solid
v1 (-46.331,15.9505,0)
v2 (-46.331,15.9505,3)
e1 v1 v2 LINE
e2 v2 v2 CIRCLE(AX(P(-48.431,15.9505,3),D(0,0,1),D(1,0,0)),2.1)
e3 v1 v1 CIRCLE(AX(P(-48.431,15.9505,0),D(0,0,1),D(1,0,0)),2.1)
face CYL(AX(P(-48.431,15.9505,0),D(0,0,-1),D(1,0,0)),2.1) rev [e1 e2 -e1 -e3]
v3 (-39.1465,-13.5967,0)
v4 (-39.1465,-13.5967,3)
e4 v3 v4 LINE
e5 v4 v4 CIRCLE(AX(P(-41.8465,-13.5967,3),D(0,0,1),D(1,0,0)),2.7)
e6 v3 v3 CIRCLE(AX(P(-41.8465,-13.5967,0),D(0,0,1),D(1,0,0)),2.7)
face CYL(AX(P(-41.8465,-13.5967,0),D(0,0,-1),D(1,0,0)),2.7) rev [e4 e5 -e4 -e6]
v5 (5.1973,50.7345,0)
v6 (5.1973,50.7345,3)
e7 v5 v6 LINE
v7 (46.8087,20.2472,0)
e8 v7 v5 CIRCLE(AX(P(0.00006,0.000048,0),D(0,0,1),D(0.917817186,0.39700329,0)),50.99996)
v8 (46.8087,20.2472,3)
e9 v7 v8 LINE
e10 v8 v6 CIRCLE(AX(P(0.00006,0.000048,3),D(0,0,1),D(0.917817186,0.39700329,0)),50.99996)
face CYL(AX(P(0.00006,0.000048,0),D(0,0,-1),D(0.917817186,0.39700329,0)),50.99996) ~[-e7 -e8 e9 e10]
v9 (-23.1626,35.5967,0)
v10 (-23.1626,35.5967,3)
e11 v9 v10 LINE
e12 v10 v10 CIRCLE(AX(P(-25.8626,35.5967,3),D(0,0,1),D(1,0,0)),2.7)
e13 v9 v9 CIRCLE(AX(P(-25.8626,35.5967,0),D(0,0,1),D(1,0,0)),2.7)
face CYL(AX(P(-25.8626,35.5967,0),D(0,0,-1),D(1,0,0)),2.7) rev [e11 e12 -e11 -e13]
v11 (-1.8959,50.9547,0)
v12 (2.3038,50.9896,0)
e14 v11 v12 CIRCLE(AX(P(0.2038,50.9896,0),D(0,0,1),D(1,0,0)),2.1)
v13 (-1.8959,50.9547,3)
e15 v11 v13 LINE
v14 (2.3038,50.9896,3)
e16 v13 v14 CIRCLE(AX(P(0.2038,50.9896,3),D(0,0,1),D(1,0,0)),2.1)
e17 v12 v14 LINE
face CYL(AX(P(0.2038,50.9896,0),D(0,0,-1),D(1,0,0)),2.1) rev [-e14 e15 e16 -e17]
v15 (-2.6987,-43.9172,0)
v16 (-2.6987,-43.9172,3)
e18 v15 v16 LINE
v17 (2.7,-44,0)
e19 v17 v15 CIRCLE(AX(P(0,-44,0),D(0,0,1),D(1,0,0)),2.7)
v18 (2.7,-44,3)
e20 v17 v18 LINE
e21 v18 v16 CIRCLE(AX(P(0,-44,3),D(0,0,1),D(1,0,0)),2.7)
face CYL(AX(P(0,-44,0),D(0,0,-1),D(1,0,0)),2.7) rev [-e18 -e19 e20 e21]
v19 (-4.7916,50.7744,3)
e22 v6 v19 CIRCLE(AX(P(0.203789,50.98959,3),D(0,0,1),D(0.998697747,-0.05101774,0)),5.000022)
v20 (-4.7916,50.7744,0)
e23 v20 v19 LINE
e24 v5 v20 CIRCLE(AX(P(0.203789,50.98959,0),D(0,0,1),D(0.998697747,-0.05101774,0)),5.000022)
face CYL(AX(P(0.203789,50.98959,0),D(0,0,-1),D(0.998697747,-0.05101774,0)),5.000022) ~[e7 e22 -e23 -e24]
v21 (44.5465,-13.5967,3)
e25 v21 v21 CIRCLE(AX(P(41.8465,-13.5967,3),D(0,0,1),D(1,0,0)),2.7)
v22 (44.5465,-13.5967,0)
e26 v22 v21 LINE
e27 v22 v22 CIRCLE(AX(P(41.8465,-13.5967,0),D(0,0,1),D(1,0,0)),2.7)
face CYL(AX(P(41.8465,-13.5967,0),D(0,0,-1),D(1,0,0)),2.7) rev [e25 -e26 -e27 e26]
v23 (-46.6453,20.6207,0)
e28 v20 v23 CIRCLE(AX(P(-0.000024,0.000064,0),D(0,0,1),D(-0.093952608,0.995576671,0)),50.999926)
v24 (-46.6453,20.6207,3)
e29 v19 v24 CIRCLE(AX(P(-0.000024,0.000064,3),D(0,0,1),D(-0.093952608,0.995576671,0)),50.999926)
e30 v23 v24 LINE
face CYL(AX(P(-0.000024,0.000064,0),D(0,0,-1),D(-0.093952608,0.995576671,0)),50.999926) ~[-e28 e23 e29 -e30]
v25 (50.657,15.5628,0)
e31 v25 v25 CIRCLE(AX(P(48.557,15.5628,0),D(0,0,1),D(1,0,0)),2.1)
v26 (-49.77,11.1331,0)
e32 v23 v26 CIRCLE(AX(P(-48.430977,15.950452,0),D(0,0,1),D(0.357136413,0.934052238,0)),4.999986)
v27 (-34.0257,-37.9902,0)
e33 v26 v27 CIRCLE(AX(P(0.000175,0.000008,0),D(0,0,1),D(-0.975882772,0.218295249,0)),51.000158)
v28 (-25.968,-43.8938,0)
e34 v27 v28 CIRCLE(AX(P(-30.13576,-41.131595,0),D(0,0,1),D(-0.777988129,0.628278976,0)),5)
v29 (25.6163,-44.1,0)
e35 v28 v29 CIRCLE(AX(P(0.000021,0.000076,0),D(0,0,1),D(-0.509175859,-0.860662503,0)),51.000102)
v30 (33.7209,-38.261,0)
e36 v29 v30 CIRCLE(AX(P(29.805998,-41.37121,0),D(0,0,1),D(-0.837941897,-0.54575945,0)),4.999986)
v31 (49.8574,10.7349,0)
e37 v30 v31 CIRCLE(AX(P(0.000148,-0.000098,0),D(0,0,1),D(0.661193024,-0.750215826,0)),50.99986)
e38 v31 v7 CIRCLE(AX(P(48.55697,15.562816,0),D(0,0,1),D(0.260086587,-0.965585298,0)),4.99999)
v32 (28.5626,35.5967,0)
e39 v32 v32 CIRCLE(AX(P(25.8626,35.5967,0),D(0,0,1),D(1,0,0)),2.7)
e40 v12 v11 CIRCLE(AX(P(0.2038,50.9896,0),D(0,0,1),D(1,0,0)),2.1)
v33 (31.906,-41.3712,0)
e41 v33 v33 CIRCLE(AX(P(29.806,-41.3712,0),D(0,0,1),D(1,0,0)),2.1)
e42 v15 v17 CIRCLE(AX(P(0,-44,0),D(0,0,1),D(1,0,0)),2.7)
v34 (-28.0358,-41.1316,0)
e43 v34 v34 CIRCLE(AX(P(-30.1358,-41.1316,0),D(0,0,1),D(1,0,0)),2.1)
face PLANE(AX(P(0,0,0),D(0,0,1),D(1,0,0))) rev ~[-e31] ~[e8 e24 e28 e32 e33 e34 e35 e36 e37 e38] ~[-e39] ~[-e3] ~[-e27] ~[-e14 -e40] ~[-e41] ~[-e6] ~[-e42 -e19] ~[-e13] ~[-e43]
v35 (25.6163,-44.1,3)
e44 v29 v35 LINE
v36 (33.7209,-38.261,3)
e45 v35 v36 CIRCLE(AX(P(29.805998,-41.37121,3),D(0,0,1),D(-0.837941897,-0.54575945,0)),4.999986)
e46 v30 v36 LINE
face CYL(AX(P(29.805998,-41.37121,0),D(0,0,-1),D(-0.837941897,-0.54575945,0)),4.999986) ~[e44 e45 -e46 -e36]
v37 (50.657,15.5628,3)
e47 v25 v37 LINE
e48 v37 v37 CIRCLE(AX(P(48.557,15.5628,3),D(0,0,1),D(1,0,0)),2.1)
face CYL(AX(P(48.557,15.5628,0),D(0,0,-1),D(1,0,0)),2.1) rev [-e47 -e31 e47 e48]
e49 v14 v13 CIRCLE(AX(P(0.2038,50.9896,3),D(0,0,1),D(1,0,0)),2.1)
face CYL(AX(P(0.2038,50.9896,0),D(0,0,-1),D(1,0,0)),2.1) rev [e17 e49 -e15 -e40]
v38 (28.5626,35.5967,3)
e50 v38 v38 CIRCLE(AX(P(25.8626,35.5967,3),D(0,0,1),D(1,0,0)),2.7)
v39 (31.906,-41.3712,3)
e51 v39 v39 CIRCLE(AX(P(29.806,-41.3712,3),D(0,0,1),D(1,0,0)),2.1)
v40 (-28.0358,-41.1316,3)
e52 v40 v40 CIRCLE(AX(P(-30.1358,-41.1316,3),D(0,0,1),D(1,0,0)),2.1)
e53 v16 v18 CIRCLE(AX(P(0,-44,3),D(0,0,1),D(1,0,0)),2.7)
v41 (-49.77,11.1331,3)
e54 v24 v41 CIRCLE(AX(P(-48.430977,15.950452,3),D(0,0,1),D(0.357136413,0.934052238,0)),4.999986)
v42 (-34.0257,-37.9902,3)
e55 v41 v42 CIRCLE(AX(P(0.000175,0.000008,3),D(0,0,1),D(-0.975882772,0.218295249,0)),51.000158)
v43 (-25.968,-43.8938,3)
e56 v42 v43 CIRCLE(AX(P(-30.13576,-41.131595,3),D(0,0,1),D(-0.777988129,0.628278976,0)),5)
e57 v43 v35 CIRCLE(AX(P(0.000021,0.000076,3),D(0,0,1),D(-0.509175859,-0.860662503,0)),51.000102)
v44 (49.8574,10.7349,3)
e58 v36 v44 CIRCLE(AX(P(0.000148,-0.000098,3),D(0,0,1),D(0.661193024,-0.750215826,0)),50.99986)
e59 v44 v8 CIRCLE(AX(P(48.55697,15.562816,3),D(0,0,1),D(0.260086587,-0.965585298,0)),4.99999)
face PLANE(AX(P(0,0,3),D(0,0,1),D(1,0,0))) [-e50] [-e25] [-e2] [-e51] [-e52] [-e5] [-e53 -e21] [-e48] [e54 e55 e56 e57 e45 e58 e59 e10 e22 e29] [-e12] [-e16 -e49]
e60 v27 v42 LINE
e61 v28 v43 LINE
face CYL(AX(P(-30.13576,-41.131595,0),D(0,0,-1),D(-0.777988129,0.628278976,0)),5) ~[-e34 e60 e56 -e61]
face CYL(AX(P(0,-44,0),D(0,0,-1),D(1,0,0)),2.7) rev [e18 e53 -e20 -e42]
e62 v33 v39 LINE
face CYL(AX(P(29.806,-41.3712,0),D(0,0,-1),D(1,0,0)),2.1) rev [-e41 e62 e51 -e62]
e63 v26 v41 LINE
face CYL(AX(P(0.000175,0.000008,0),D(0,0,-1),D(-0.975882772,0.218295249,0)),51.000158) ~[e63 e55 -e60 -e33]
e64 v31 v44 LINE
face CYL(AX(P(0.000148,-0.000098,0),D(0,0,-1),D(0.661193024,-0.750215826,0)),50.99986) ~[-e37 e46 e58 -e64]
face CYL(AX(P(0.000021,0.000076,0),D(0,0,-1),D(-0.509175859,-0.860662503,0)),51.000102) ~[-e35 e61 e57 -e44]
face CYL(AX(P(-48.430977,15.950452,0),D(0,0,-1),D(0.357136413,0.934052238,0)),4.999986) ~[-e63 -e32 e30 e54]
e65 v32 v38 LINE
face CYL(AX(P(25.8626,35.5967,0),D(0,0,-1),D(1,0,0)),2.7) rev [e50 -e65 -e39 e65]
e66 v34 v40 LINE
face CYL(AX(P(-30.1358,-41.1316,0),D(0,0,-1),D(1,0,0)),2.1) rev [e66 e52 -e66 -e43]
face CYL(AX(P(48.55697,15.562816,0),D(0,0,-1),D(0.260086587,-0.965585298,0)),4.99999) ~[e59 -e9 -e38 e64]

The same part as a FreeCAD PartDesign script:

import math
import FreeCAD as App
import Part
import Sketcher

V = App.Vector
Q = App.Units.Quantity

doc = App.newDocument("Part")
body = doc.addObject("PartDesign::Body", "Body")

# Sketch on XY plane
sketch1 = body.newObject("Sketcher::SketchObject", "Sketch")
sketch1.AttachmentSupport = (doc.getObject("XY_Plane"), [""])
sketch1.MapMode = "FlatFace"
sketch1.addGeometry([
    Part.ArcOfCircle(Part.Circle(V(0, 0, 0), V(0, 0, 1), 50.999988), math.radians(23.390996), math.radians(84.150958)),  # 0
    Part.ArcOfCircle(Part.Circle(V(0.2038, 50.9896, 0), V(0, 0, 1), 5.000012), math.radians(-2.924493), math.radians(182.466756)),  # 1
    Part.ArcOfCircle(Part.Circle(V(0, 0, 0), V(0, 0, 1), 50.999988), math.radians(95.391059), math.radians(156.150998)),  # 2
    Part.ArcOfCircle(Part.Circle(V(-48.431, 15.9505, 0), V(0, 0, 1), 4.999949), math.radians(69.07512), math.radians(254.466688)),  # 3
    Part.ArcOfCircle(Part.Circle(V(0, 0, 0), V(0, 0, 1), 51.000034), math.radians(167.391024), math.radians(228.150972)),  # 4
    Part.ArcOfCircle(Part.Circle(V(-30.1358, -41.1316, 0), V(0, 0, 1), 4.999972), math.radians(141.076399), math.radians(326.465663)),  # 5
    Part.ArcOfCircle(Part.Circle(V(0, 0, 0), V(0, 0, 1), 51.000034), math.radians(-120.608973), math.radians(-59.849046)),  # 6
    Part.ArcOfCircle(Part.Circle(V(29.806, -41.3712, 0), V(0, 0, 1), 4.999994), math.radians(-146.923337), math.radians(38.465454)),  # 7
    Part.ArcOfCircle(Part.Circle(V(0, 0, 0), V(0, 0, 1), 50.999988), math.radians(-48.609025), math.radians(12.150969)),  # 8
    Part.ArcOfCircle(Part.Circle(V(48.557, 15.5628, 0), V(0, 0, 1), 4.999966), math.radians(-74.925086), math.radians(110.466454)),  # 9
    Part.Circle(V(-30.1358, -41.1316, 0), V(0, 0, 1), 2.1),  # 10
    Part.Circle(V(0, -44, 0), V(0, 0, 1), 2.7),  # 11
    Part.Circle(V(-41.8465, -13.5967, 0), V(0, 0, 1), 2.7),  # 12
    Part.Circle(V(29.806, -41.3712, 0), V(0, 0, 1), 2.1),  # 13
    Part.Circle(V(41.8465, -13.5967, 0), V(0, 0, 1), 2.7),  # 14
    Part.Circle(V(-48.431, 15.9505, 0), V(0, 0, 1), 2.1),  # 15
    Part.Circle(V(-25.8626, 35.5967, 0), V(0, 0, 1), 2.7),  # 16
    Part.Circle(V(48.557, 15.5628, 0), V(0, 0, 1), 2.1),  # 17
    Part.Circle(V(25.8626, 35.5967, 0), V(0, 0, 1), 2.7),  # 18
    Part.Circle(V(0.2038, 50.9896, 0), V(0, 0, 1), 2.1),  # 19
], False)
sketch1.addConstraint([
    Sketcher.Constraint("Coincident", 0, 2, 1, 1),
    Sketcher.Constraint("Coincident", 1, 2, 2, 1),
    Sketcher.Constraint("Coincident", 2, 2, 3, 1),
    Sketcher.Constraint("Coincident", 3, 2, 4, 1),
    Sketcher.Constraint("Coincident", 4, 2, 5, 1),
    Sketcher.Constraint("Coincident", 5, 2, 6, 1),
    Sketcher.Constraint("Coincident", 6, 2, 7, 1),
    Sketcher.Constraint("Coincident", 7, 2, 8, 1),
    Sketcher.Constraint("Coincident", 8, 2, 9, 1),
    Sketcher.Constraint("Coincident", 9, 2, 0, 1),
    Sketcher.Constraint("Coincident", 0, 3, -1, 1),
    Sketcher.Constraint("Coincident", 2, 3, -1, 1),
    Sketcher.Constraint("Coincident", 4, 3, -1, 1),
    Sketcher.Constraint("Coincident", 6, 3, -1, 1),
    Sketcher.Constraint("Coincident", 8, 3, -1, 1),
    Sketcher.Constraint("Coincident", 10, 3, 5, 3),
    Sketcher.Constraint("Coincident", 13, 3, 7, 3),
    Sketcher.Constraint("Coincident", 15, 3, 3, 3),
    Sketcher.Constraint("Coincident", 17, 3, 9, 3),
    Sketcher.Constraint("Coincident", 19, 3, 1, 3),
    Sketcher.Constraint("Equal", 0, 2),
    Sketcher.Constraint("Equal", 1, 3),
    Sketcher.Constraint("Equal", 2, 4),
    Sketcher.Constraint("Equal", 3, 5),
    Sketcher.Constraint("Equal", 4, 6),
    Sketcher.Constraint("Equal", 5, 7),
    Sketcher.Constraint("Equal", 6, 8),
    Sketcher.Constraint("Equal", 7, 9),
    Sketcher.Constraint("Equal", 11, 12),
    Sketcher.Constraint("Equal", 10, 13),
    Sketcher.Constraint("Equal", 12, 14),
    Sketcher.Constraint("Equal", 13, 15),
    Sketcher.Constraint("Equal", 14, 16),
    Sketcher.Constraint("Equal", 15, 17),
    Sketcher.Constraint("Equal", 16, 18),
    Sketcher.Constraint("Equal", 17, 19),
    Sketcher.Constraint("Symmetric", 12, 3, 14, 3, -2),
    Sketcher.Constraint("Symmetric", 16, 3, 18, 3, -2),
    Sketcher.Constraint("PointOnObject", 11, 3, -2),
    Sketcher.Constraint("Radius", 0, Q("51 mm")),
    Sketcher.Constraint("Radius", 1, Q("5 mm")),
    Sketcher.Constraint("Diameter", 10, Q("4.2 mm")),
    Sketcher.Constraint("Diameter", 11, Q("5.4 mm")),
    Sketcher.Constraint("DistanceY", 11, 3, -1, 1, Q("44 mm")),
    Sketcher.Constraint("DistanceY", 6, 2, -1, 1, Q("44.1 mm")),
    Sketcher.Constraint("DistanceX", 3, 2, -1, 1, Q("49.77 mm")),
    Sketcher.Constraint("DistanceX", 16, 3, 0, 2, Q("31.06 mm")),
    Sketcher.Constraint("DistanceY", 0, 2, 1, 2, Q("0.04 mm")),
    Sketcher.Constraint("DistanceX", 4, 2, 5, 3, Q("3.89 mm")),
    Sketcher.Constraint("DistanceX", 3, 3, -1, 1, Q("48.431 mm")),
    Sketcher.Constraint("DistanceX", -1, 1, 7, 3, Q("29.806 mm")),
    Sketcher.Constraint("DistanceX", -1, 1, 9, 3, Q("48.557 mm")),
    Sketcher.Constraint("DistanceX", 5, 2, -1, 1, Q("25.968 mm")),
    Sketcher.Constraint("DistanceY", -1, 1, 8, 2, Q("10.735 mm")),
    Sketcher.Constraint("DistanceY", 3, 3, 1, 3, Q("35.039 mm")),
    Sketcher.Constraint("DistanceY", 5, 3, 12, 3, Q("27.535 mm")),
    Sketcher.Constraint("DistanceY", 16, 3, 1, 3, Q("15.393 mm")),
    Sketcher.Constraint("DistanceX", 14, 3, 8, 2, Q("8.011 mm")),
])
pad1 = body.newObject("PartDesign::Pad", "Pad")
pad1.Profile = sketch1
pad1.Length = 3

doc.recompute()
